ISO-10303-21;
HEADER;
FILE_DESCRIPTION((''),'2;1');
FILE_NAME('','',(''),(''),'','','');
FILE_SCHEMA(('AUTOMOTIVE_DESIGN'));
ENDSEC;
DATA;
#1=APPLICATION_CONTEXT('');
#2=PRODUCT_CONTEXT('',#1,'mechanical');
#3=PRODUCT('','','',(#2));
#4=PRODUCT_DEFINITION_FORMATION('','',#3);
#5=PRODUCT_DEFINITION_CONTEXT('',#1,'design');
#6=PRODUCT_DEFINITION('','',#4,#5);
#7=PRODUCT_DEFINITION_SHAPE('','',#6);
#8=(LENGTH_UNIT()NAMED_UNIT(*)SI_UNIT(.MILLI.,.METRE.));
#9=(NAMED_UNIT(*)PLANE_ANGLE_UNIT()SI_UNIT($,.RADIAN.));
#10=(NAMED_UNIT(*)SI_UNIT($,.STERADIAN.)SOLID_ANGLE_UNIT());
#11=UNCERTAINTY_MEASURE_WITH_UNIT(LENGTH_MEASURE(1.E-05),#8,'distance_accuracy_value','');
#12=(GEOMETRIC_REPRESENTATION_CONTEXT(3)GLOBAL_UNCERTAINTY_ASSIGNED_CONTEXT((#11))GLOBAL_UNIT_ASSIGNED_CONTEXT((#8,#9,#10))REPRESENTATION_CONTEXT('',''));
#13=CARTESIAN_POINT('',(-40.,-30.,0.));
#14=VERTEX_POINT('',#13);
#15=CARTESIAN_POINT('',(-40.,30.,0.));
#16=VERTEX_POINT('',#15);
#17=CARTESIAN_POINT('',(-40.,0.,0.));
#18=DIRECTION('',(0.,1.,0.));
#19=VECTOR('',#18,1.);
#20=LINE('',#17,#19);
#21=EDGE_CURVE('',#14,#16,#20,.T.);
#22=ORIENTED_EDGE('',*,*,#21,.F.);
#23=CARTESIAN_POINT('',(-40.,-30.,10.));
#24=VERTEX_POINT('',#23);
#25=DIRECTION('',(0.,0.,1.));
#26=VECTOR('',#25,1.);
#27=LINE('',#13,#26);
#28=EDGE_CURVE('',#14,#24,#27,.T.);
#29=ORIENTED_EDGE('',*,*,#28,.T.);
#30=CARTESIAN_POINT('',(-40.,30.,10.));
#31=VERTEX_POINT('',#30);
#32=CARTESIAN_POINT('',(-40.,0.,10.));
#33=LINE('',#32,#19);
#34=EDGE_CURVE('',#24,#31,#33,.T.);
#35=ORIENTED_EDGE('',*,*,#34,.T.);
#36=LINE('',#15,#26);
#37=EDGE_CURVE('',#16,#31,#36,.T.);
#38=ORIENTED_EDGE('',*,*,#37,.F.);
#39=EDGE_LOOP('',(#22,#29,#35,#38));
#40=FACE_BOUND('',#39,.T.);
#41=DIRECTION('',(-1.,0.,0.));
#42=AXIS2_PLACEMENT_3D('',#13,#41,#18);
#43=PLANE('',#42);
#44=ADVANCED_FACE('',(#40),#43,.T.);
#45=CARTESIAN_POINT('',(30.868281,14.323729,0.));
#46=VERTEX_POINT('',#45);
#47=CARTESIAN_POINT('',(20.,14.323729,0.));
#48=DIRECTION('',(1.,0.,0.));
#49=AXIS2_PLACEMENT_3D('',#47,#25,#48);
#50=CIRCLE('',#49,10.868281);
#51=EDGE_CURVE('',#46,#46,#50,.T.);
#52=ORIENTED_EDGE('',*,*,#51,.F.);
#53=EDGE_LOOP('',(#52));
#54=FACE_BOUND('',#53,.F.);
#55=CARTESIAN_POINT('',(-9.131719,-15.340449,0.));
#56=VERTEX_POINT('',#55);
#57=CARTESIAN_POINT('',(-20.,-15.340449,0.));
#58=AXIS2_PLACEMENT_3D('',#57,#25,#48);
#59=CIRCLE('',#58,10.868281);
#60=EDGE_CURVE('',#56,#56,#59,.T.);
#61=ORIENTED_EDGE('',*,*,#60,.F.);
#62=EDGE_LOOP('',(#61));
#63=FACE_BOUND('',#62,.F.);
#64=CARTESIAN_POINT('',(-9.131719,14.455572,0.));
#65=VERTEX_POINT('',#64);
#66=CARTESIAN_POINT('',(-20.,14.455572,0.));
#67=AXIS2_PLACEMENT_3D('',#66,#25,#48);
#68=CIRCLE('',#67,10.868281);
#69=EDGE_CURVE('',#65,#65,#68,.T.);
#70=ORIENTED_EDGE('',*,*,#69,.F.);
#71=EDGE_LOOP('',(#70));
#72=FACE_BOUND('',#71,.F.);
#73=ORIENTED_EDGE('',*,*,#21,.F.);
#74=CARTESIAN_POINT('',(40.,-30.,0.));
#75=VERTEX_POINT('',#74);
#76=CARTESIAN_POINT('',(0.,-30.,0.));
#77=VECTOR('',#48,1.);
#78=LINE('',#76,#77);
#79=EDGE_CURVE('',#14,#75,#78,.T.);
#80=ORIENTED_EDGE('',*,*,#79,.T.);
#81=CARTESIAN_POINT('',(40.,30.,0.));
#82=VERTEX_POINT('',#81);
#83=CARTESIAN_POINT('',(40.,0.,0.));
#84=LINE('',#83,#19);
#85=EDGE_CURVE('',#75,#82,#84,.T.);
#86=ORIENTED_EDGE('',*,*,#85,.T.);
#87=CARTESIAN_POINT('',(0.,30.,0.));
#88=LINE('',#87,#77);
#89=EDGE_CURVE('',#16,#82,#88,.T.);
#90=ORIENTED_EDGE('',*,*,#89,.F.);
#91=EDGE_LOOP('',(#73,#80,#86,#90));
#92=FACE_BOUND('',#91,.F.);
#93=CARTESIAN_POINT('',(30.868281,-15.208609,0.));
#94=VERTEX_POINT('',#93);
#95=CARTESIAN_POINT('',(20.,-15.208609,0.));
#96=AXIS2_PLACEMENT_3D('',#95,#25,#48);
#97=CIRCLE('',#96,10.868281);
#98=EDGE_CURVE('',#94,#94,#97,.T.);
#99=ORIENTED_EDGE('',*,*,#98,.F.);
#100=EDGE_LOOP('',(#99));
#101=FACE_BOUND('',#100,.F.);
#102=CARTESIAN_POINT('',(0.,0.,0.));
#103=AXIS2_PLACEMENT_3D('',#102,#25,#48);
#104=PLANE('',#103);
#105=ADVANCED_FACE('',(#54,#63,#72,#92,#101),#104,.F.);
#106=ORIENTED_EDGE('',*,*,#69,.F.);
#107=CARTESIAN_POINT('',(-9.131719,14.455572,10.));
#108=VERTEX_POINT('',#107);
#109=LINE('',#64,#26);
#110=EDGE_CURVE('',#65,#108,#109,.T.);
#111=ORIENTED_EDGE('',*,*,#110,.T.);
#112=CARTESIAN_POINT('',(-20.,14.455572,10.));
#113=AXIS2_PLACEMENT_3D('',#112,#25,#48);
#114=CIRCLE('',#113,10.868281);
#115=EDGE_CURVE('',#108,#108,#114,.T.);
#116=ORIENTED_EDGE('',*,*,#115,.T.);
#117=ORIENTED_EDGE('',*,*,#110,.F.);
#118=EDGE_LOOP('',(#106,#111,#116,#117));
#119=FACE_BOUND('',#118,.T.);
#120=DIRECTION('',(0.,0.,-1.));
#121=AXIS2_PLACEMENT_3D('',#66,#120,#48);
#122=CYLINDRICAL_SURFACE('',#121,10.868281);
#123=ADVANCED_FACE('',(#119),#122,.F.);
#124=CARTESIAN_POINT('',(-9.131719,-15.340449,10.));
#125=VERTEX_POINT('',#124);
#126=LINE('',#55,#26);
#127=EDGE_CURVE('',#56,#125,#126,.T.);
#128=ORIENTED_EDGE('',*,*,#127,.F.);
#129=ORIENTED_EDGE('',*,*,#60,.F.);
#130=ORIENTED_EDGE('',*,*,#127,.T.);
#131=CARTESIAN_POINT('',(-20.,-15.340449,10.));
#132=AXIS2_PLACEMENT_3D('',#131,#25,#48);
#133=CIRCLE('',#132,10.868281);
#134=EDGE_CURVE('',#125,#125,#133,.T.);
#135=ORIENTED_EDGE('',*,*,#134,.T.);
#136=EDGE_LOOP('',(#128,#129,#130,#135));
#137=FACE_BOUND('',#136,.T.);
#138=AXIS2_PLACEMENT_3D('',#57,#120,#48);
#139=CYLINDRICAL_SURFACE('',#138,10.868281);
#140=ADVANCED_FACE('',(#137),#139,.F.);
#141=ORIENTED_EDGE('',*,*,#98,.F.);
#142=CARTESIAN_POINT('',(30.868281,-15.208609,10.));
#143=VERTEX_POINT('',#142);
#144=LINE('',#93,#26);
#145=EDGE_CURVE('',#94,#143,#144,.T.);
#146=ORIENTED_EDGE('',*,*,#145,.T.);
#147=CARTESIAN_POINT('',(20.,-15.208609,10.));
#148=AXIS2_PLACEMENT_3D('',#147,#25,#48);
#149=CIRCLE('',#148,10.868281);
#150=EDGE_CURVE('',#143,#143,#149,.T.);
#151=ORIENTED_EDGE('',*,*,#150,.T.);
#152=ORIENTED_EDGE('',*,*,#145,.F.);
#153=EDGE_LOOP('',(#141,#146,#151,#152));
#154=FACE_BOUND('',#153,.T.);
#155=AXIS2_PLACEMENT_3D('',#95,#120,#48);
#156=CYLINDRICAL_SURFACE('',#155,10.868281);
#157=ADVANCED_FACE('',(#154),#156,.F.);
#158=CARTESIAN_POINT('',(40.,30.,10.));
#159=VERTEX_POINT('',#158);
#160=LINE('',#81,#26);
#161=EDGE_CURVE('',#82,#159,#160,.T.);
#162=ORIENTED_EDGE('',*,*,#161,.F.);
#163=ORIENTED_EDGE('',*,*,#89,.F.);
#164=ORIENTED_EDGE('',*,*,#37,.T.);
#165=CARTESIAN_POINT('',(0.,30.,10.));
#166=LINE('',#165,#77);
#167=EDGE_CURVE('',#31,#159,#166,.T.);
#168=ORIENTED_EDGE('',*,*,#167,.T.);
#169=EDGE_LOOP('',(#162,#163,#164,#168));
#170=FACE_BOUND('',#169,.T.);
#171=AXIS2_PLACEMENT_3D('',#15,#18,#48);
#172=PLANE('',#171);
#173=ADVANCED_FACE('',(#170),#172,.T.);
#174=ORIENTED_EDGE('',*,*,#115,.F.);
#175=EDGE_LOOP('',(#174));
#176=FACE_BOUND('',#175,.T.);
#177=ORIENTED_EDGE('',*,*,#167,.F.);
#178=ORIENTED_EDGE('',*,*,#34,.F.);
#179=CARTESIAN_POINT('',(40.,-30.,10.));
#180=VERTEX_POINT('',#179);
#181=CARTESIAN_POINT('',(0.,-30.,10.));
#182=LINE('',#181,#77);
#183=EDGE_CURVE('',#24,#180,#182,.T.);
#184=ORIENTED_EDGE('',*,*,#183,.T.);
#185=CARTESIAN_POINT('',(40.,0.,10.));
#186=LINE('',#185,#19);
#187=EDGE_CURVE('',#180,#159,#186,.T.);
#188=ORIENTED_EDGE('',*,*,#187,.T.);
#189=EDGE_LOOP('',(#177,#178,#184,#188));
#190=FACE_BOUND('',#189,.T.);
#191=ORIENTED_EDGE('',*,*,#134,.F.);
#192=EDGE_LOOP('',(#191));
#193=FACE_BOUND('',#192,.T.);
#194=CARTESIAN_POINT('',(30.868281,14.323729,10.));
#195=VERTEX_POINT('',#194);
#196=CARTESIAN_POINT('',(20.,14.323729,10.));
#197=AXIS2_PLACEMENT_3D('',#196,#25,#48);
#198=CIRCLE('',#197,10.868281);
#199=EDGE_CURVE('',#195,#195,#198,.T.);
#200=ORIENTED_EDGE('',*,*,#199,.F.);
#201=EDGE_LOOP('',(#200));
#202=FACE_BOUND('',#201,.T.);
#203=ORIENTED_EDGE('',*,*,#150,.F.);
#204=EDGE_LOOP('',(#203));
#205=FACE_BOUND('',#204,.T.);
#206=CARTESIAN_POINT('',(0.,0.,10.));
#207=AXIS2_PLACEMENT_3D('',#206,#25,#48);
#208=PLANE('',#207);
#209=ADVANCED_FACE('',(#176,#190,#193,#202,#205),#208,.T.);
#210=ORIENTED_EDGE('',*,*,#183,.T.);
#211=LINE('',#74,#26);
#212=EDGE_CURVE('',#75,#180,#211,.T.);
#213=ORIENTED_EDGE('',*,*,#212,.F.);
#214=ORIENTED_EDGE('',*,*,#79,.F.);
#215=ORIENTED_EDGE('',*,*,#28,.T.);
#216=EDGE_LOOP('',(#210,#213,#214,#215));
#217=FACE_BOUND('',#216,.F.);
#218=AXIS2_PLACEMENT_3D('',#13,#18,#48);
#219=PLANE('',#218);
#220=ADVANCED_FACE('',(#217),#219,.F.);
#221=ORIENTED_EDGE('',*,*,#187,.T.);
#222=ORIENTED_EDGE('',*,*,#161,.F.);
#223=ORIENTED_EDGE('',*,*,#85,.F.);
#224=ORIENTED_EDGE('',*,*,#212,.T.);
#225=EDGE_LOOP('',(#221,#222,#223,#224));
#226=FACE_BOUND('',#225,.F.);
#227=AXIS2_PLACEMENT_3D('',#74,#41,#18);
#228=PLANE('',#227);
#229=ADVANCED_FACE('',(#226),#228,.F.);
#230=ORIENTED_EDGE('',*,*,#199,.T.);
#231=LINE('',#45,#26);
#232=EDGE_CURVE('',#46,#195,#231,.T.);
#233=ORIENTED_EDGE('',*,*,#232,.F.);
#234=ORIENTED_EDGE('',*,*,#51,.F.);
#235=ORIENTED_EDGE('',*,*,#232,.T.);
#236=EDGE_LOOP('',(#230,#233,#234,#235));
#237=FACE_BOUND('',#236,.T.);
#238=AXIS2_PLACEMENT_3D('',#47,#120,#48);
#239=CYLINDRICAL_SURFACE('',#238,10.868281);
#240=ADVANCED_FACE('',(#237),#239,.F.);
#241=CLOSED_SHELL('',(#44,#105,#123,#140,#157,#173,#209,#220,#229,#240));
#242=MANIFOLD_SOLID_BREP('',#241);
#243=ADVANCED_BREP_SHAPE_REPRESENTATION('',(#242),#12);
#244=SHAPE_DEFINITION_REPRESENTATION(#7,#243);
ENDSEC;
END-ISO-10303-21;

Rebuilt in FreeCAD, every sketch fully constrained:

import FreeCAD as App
import Part
import Sketcher
from FreeCAD import Vector

doc = App.newDocument("Part")
params = doc.addObject("Spreadsheet::Sheet", "Params")
for row, (alias, value) in enumerate([
    ("sketch1_width", "80 mm"),
    ("sketch1_height", "60 mm"),
    ("pad1_length", "10 mm"),
], start=1):
    params.set(f"A{row}", alias)
    params.set(f"B{row}", "=" + value)
    params.setAlias(f"B{row}", alias)

body = doc.addObject("PartDesign::Body", "Body")

# Sketch on XY plane
sketch1 = body.newObject("Sketcher::SketchObject", "Sketch")
sketch1.AttachmentSupport = (doc.getObject("XY_Plane"), [""])
sketch1.MapMode = "FlatFace"
sketch1.addGeometry([
    Part.LineSegment(Vector(-40, 30, 0), Vector(-40, -30, 0)),  # 0
    Part.LineSegment(Vector(-40, -30, 0), Vector(40, -30, 0)),  # 1
    Part.LineSegment(Vector(40, -30, 0), Vector(40, 30, 0)),  # 2
    Part.LineSegment(Vector(40, 30, 0), Vector(-40, 30, 0)),  # 3
    Part.Circle(Vector(-20, -15.340449, 0), Vector(0, 0, 1), 10.868281),  # 4
    Part.Circle(Vector(20, -15.208609, 0), Vector(0, 0, 1), 10.868281),  # 5
    Part.Circle(Vector(-20, 14.455572, 0), Vector(0, 0, 1), 10.868281),  # 6
    Part.Circle(Vector(20, 14.323729, 0), Vector(0, 0, 1), 10.868281),  # 7
], False)
sketch1.addConstraint([
    Sketcher.Constraint("Coincident", 0, 2, 1, 1),
    Sketcher.Constraint("Coincident", 1, 2, 2, 1),
    Sketcher.Constraint("Coincident", 2, 2, 3, 1),
    Sketcher.Constraint("Coincident", 3, 2, 0, 1),
    Sketcher.Constraint("Vertical", 0),
    Sketcher.Constraint("Horizontal", 1),
    Sketcher.Constraint("Vertical", 2),
    Sketcher.Constraint("Horizontal", 3),
    Sketcher.Constraint("Equal", 4, 5),
    Sketcher.Constraint("Equal", 5, 6),
    Sketcher.Constraint("Equal", 6, 7),
    Sketcher.Constraint("Symmetric", 0, 2, 2, 2, -1, 1),
    Sketcher.Constraint("Vertical", 4, 3, 6, 3),
    Sketcher.Constraint("Vertical", 5, 3, 7, 3),
    Sketcher.Constraint("DistanceX", 1, 1, 1, 2, 80.0),
    Sketcher.Constraint("DistanceY", 0, 2, 0, 1, 60.0),
    Sketcher.Constraint("DistanceX", 4, 3, -1, 1, 20.0),
    Sketcher.Constraint("DistanceX", -1, 1, 5, 3, 20.0),
    Sketcher.Constraint("Diameter", 4, 21.736562),
    Sketcher.Constraint("DistanceY", 4, 3, -1, 1, 15.340449),
    Sketcher.Constraint("DistanceY", 5, 3, -1, 1, 15.208609),
    Sketcher.Constraint("DistanceY", -1, 1, 7, 3, 14.323729),
    Sketcher.Constraint("DistanceY", 4, 3, 6, 3, 29.796021),
])
sketch1.setExpression("Constraints[14]", "Params.sketch1_width")
sketch1.setExpression("Constraints[15]", "Params.sketch1_height")
pad1 = body.newObject("PartDesign::Pad", "Pad")
pad1.Profile = sketch1
pad1.setExpression("Length", "Params.pad1_length")

doc.recompute()
